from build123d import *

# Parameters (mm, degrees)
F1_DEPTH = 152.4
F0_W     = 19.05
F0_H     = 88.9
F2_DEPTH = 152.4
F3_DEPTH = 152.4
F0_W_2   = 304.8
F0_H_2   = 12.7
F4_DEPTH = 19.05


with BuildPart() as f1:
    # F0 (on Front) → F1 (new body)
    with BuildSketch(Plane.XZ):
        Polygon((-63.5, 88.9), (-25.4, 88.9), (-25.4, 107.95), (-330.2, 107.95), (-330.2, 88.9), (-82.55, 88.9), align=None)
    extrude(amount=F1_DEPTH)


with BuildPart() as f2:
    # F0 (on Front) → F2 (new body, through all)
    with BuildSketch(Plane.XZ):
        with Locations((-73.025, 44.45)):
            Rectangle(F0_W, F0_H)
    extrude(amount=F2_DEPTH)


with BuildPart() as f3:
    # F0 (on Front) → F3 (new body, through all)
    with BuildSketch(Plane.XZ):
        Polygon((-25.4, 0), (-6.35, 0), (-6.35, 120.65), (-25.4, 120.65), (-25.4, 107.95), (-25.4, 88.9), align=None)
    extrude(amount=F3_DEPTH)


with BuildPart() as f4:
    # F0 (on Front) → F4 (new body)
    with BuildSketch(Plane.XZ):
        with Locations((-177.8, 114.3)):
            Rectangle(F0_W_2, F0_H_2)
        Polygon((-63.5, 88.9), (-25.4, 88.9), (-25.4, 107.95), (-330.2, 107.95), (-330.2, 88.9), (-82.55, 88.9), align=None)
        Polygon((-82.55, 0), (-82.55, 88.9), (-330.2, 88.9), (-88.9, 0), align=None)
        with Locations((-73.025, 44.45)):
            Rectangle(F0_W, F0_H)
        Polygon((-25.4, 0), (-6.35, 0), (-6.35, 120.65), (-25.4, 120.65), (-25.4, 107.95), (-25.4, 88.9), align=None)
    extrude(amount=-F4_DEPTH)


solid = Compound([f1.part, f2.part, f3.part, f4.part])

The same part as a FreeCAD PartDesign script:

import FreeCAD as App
import Part
import Sketcher
Q = App.Units.Quantity

doc = App.newDocument("Part")
body = doc.addObject("PartDesign::Body", "Body")

# Sketch on XZ plane
sketch1 = body.newObject("Sketcher::SketchObject", "Sketch")
sketch1.AttachmentSupport = (doc.getObject("XZ_Plane"), [""])
sketch1.MapMode = "FlatFace"
sketch1.addGeometry(Part.LineSegment(App.Vector(-25, 89, 0), App.Vector(-25, 108, 0)), False)
sketch1.addGeometry(Part.LineSegment(App.Vector(-25, 108, 0), App.Vector(-330, 108, 0)), False)
sketch1.addGeometry(Part.LineSegment(App.Vector(-330, 108, 0), App.Vector(-330, 89, 0)), False)
sketch1.addGeometry(Part.LineSegment(App.Vector(-330, 89, 0), App.Vector(-25, 89, 0)), False)
sketch1.addConstraint(Sketcher.Constraint("Coincident", 0, 2, 1, 1))
sketch1.addConstraint(Sketcher.Constraint("Coincident", 1, 2, 2, 1))
sketch1.addConstraint(Sketcher.Constraint("Coincident", 2, 2, 3, 1))
sketch1.addConstraint(Sketcher.Constraint("Coincident", 3, 2, 0, 1))
sketch1.addConstraint(Sketcher.Constraint("Vertical", 0))
sketch1.addConstraint(Sketcher.Constraint("Horizontal", 1))
sketch1.addConstraint(Sketcher.Constraint("Vertical", 2))
sketch1.addConstraint(Sketcher.Constraint("Horizontal", 3))
sketch1.addConstraint(Sketcher.Constraint("DistanceX", 1, 2, 1, 1, Q("12 in")))
sketch1.addConstraint(Sketcher.Constraint("DistanceX", 0, 2, -1, 1, Q("1 in")))
sketch1.addConstraint(Sketcher.Constraint("DistanceY", 0, 1, 0, 2, Q("0.75 in")))
sketch1.addConstraint(Sketcher.Constraint("DistanceY", -1, 1, 2, 2, Q("3.5 in")))
pad1 = body.newObject("PartDesign::Pad", "Pad")
pad1.Profile = sketch1
pad1.Length = Q("6 in")
body2 = doc.addObject("PartDesign::Body", "Body001")

# Sketch on XZ plane
sketch2 = body2.newObject("Sketcher::SketchObject", "Sketch001")
sketch2.AttachmentSupport = (doc.getObject("XZ_Plane001"), [""])
sketch2.MapMode = "FlatFace"
sketch2.addGeometry(Part.LineSegment(App.Vector(-83, 89, 0), App.Vector(-83, 0, 0)), False)
sketch2.addGeometry(Part.LineSegment(App.Vector(-83, 0, 0), App.Vector(-64, 0, 0)), False)
sketch2.addGeometry(Part.LineSegment(App.Vector(-64, 0, 0), App.Vector(-64, 89, 0)), False)
sketch2.addGeometry(Part.LineSegment(App.Vector(-64, 89, 0), App.Vector(-83, 89, 0)), False)
sketch2.addConstraint(Sketcher.Constraint("Coincident", 0, 2, 1, 1))
sketch2.addConstraint(Sketcher.Constraint("Coincident", 1, 2, 2, 1))
sketch2.addConstraint(Sketcher.Constraint("Coincident", 2, 2, 3, 1))
sketch2.addConstraint(Sketcher.Constraint("Coincident", 3, 2, 0, 1))
sketch2.addConstraint(Sketcher.Constraint("Vertical", 0))
sketch2.addConstraint(Sketcher.Constraint("Horizontal", 1))
sketch2.addConstraint(Sketcher.Constraint("Vertical", 2))
sketch2.addConstraint(Sketcher.Constraint("Horizontal", 3))
sketch2.addConstraint(Sketcher.Constraint("PointOnObject", 0, 2, -1))
sketch2.addConstraint(Sketcher.Constraint("DistanceY", 0, 2, 0, 1, Q("3.5 in")))
sketch2.addConstraint(Sketcher.Constraint("DistanceX", 1, 1, 1, 2, Q("0.75 in")))
sketch2.addConstraint(Sketcher.Constraint("DistanceX", 1, 2, -1, 1, Q("2.5 in")))
pad2 = body2.newObject("PartDesign::Pad", "Pad001")
pad2.Profile = sketch2
pad2.Length = Q("6 in")
body3 = doc.addObject("PartDesign::Body", "Body002")

# Sketch on XZ plane
sketch3 = body3.newObject("Sketcher::SketchObject", "Sketch002")
sketch3.AttachmentSupport = (doc.getObject("XZ_Plane002"), [""])
sketch3.MapMode = "FlatFace"
sketch3.addGeometry(Part.LineSegment(App.Vector(-25, 0, 0), App.Vector(-6, 0, 0)), False)
sketch3.addGeometry(Part.LineSegment(App.Vector(-6, 0, 0), App.Vector(-6, 121, 0)), False)
sketch3.addGeometry(Part.LineSegment(App.Vector(-6, 121, 0), App.Vector(-25, 121, 0)), False)
sketch3.addGeometry(Part.LineSegment(App.Vector(-25, 121, 0), App.Vector(-25, 0, 0)), False)
sketch3.addConstraint(Sketcher.Constraint("Coincident", 0, 2, 1, 1))
sketch3.addConstraint(Sketcher.Constraint("Coincident", 1, 2, 2, 1))
sketch3.addConstraint(Sketcher.Constraint("Coincident", 2, 2, 3, 1))
sketch3.addConstraint(Sketcher.Constraint("Coincident", 3, 2, 0, 1))
sketch3.addConstraint(Sketcher.Constraint("Horizontal", 0))
sketch3.addConstraint(Sketcher.Constraint("Vertical", 1))
sketch3.addConstraint(Sketcher.Constraint("Horizontal", 2))
sketch3.addConstraint(Sketcher.Constraint("Vertical", 3))
sketch3.addConstraint(Sketcher.Constraint("PointOnObject", 0, 2, -1))
sketch3.addConstraint(Sketcher.Constraint("DistanceX", 2, 2, -1, 1, Q("1 in")))
sketch3.addConstraint(Sketcher.Constraint("DistanceX", 0, 1, 0, 2, Q("0.75 in")))
sketch3.addConstraint(Sketcher.Constraint("DistanceY", 1, 1, 1, 2, Q("4.75 in")))
pad3 = body3.newObject("PartDesign::Pad", "Pad002")
pad3.Profile = sketch3
pad3.Length = Q("6 in")
body4 = doc.addObject("PartDesign::Body", "Body003")

# Sketch on XZ plane
sketch4 = body4.newObject("Sketcher::SketchObject", "Sketch003")
sketch4.AttachmentSupport = (doc.getObject("XZ_Plane003"), [""])
sketch4.MapMode = "FlatFace"
sketch4.addGeometry(Part.LineSegment(App.Vector(-330, 121, 0), App.Vector(-330, 89, 0)), False)
sketch4.addGeometry(Part.LineSegment(App.Vector(-330, 89, 0), App.Vector(-89, 0, 0)), False)
sketch4.addGeometry(Part.LineSegment(App.Vector(-89, 0, 0), App.Vector(-64, 0, 0)), False)
sketch4.addGeometry(Part.LineSegment(App.Vector(-64, 0, 0), App.Vector(-64, 89, 0)), False)
sketch4.addGeometry(Part.LineSegment(App.Vector(-64, 89, 0), App.Vector(-25, 89, 0)), False)
sketch4.addGeometry(Part.LineSegment(App.Vector(-25, 89, 0), App.Vector(-25, 0, 0)), False)
sketch4.addGeometry(Part.LineSegment(App.Vector(-25, 0, 0), App.Vector(-6, 0, 0)), False)
sketch4.addGeometry(Part.LineSegment(App.Vector(-6, 0, 0), App.Vector(-6, 121, 0)), False)
sketch4.addGeometry(Part.LineSegment(App.Vector(-6, 121, 0), App.Vector(-330, 121, 0)), False)
sketch4.addConstraint(Sketcher.Constraint("Coincident", 0, 2, 1, 1))
sketch4.addConstraint(Sketcher.Constraint("Coincident", 1, 2, 2, 1))
sketch4.addConstraint(Sketcher.Constraint("Coincident", 2, 2, 3, 1))
sketch4.addConstraint(Sketcher.Constraint("Coincident", 3, 2, 4, 1))
sketch4.addConstraint(Sketcher.Constraint("Coincident", 4, 2, 5, 1))
sketch4.addConstraint(Sketcher.Constraint("Coincident", 5, 2, 6, 1))
sketch4.addConstraint(Sketcher.Constraint("Coincident", 6, 2, 7, 1))
sketch4.addConstraint(Sketcher.Constraint("Coincident", 7, 2, 8, 1))
sketch4.addConstraint(Sketcher.Constraint("Coincident", 8, 2, 0, 1))
sketch4.addConstraint(Sketcher.Constraint("Vertical", 0))
sketch4.addConstraint(Sketcher.Constraint("Horizontal", 2))
sketch4.addConstraint(Sketcher.Constraint("Vertical", 3))
sketch4.addConstraint(Sketcher.Constraint("Horizontal", 4))
sketch4.addConstraint(Sketcher.Constraint("Vertical", 5))
sketch4.addConstraint(Sketcher.Constraint("Horizontal", 6))
sketch4.addConstraint(Sketcher.Constraint("Vertical", 7))
sketch4.addConstraint(Sketcher.Constraint("Horizontal", 8))
sketch4.addConstraint(Sketcher.Constraint("PointOnObject", 1, 2, -1))
sketch4.addConstraint(Sketcher.Constraint("PointOnObject", 5, 2, -1))
sketch4.addConstraint(Sketcher.Constraint("Horizontal", 0, 2, 3, 2))
sketch4.addConstraint(Sketcher.Constraint("DistanceX", 2, 1, 2, 2, Q("1 in")))
sketch4.addConstraint(Sketcher.Constraint("DistanceX", 4, 1, 4, 2, Q("1.5 in")))
sketch4.addConstraint(Sketcher.Constraint("DistanceY", 3, 1, 3, 2, Q("3.5 in")))
sketch4.addConstraint(Sketcher.Constraint("DistanceX", 0, 2, -1, 1, Q("13 in")))
sketch4.addConstraint(Sketcher.Constraint("DistanceX", 4, 2, -1, 1, Q("1 in")))
sketch4.addConstraint(Sketcher.Constraint("DistanceX", 6, 1, 6, 2, Q("0.75 in")))
sketch4.addConstraint(Sketcher.Constraint("DistanceY", 0, 2, 0, 1, Q("1.25 in")))
pad4 = body4.newObject("PartDesign::Pad", "Pad003")
pad4.Profile = sketch4
pad4.Length = Q("0.75 in")
pad4.Reversed = True

doc.recompute()
